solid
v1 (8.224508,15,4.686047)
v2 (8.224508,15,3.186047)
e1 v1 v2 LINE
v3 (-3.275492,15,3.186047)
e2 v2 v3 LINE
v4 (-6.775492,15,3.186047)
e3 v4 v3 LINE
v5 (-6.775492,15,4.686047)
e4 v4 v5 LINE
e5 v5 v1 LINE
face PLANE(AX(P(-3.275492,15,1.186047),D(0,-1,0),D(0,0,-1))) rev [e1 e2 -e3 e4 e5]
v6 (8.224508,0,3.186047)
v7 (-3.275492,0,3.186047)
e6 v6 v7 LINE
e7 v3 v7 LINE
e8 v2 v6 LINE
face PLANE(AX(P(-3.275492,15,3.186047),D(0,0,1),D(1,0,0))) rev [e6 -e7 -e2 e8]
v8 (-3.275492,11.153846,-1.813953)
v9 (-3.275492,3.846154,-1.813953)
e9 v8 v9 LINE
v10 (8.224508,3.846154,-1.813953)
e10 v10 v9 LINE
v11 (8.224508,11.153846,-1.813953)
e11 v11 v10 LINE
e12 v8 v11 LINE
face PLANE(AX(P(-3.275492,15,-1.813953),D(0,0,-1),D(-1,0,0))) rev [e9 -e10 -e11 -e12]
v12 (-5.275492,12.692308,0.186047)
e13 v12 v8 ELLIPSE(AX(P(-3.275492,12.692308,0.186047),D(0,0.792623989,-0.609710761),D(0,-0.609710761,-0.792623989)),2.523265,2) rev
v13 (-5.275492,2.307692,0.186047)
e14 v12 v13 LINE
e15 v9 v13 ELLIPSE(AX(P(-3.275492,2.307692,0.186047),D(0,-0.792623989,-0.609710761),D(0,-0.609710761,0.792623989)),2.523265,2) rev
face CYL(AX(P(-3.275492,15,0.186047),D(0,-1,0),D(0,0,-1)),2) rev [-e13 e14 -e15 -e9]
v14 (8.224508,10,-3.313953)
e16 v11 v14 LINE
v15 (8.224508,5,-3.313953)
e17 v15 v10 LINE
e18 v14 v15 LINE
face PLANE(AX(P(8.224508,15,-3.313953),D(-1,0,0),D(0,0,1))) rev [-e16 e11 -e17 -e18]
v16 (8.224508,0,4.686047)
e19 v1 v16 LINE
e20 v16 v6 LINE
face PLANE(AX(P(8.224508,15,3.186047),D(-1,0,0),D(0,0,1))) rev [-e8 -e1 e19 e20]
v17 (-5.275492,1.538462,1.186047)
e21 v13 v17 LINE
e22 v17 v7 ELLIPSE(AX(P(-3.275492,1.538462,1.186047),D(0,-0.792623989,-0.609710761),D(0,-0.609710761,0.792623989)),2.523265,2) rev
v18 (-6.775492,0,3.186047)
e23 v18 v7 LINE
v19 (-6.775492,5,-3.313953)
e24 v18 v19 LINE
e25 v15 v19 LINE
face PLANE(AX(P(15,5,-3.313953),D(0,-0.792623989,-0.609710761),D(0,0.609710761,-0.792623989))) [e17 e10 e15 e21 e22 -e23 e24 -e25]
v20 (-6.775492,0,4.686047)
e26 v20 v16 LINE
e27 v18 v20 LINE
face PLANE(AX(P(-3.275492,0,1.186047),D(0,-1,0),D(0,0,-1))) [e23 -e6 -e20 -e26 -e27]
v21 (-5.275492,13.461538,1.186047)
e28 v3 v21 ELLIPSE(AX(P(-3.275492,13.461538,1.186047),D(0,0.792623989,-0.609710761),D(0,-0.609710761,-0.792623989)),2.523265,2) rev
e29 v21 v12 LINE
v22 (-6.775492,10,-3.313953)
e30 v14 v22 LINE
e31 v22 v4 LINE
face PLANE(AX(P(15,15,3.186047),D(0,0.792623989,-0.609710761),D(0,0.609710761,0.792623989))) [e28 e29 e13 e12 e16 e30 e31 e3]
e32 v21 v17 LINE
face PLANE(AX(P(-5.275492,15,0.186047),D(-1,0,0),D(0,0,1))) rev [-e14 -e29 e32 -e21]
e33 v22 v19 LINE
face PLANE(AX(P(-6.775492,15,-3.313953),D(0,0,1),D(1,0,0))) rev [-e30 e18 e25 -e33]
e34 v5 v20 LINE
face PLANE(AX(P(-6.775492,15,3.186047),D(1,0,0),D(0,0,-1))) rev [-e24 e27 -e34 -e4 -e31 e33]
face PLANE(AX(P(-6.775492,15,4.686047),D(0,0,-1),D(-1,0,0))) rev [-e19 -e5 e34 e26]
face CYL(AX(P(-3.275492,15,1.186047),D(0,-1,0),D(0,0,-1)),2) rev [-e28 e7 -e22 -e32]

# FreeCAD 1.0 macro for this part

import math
import FreeCAD as App
import Part
import Sketcher
Q = App.Units.Quantity

doc = App.newDocument("Part")
body = doc.addObject("PartDesign::Body", "Body")

# Sketch on XZ plane
sketch1 = body.newObject("Sketcher::SketchObject", "Sketch")
sketch1.AttachmentSupport = (doc.getObject("XZ_Plane"), [""])
sketch1.MapMode = "FlatFace"
sketch1.addGeometry([
    Part.LineSegment(App.Vector(8.2, -3.3, 0), App.Vector(-6.8, -3.3, 0)),  # 0
    Part.LineSegment(App.Vector(-6.8, -3.3, 0), App.Vector(-6.8, 4.7, 0)),  # 1
    Part.LineSegment(App.Vector(-6.8, 4.7, 0), App.Vector(8.2, 4.7, 0)),  # 2
    Part.LineSegment(App.Vector(8.2, 4.7, 0), App.Vector(8.2, 3.2, 0)),  # 3
    Part.LineSegment(App.Vector(8.2, 3.2, 0), App.Vector(-3.3, 3.2, 0)),  # 4
    Part.ArcOfCircle(Part.Circle(App.Vector(-3.3, 1.2, 0), App.Vector(0, 0, 1), 2), math.radians(90), math.radians(180)),  # 5
    Part.LineSegment(App.Vector(-5.3, 1.2, 0), App.Vector(-5.3, 0.2, 0)),  # 6
    Part.ArcOfCircle(Part.Circle(App.Vector(-3.3, 0.2, 0), App.Vector(0, 0, 1), 2), math.radians(180), math.radians(270)),  # 7
    Part.LineSegment(App.Vector(-3.3, -1.8, 0), App.Vector(8.2, -1.8, 0)),  # 8
    Part.LineSegment(App.Vector(8.2, -1.8, 0), App.Vector(8.2, -3.3, 0)),  # 9
], False)
sketch1.addConstraint([
    Sketcher.Constraint("Coincident", 0, 2, 1, 1),
    Sketcher.Constraint("Coincident", 1, 2, 2, 1),
    Sketcher.Constraint("Coincident", 2, 2, 3, 1),
    Sketcher.Constraint("Coincident", 3, 2, 4, 1),
    Sketcher.Constraint("Tangent", 4, 2, 5, 1),
    Sketcher.Constraint("Tangent", 5, 2, 6, 1),
    Sketcher.Constraint("Tangent", 6, 2, 7, 1),
    Sketcher.Constraint("Tangent", 7, 2, 8, 1),
    Sketcher.Constraint("Coincident", 8, 2, 9, 1),
    Sketcher.Constraint("Coincident", 9, 2, 0, 1),
    Sketcher.Constraint("Horizontal", 0),
    Sketcher.Constraint("Vertical", 1),
    Sketcher.Constraint("Horizontal", 2),
    Sketcher.Constraint("Vertical", 3),
    Sketcher.Constraint("Horizontal", 4),
    Sketcher.Constraint("Vertical", 6),
    Sketcher.Constraint("Horizontal", 8),
    Sketcher.Constraint("Vertical", 9),
    Sketcher.Constraint("Equal", 5, 7),
    Sketcher.Constraint("Vertical", 3, 2, 8, 2),
    Sketcher.Constraint("Equal", 3, 9),
    Sketcher.Constraint("Radius", 5, Q("2 mm")),
    Sketcher.Constraint("DistanceX", 0, 2, 0, 1, Q("15 mm")),
    Sketcher.Constraint("DistanceY", 1, 1, 1, 2, Q("8 mm")),
    Sketcher.Constraint("DistanceY", 6, 2, 6, 1, Q("1 mm")),
    Sketcher.Constraint("DistanceX", 4, 2, 4, 1, Q("11.5 mm")),
    Sketcher.Constraint("DistanceX", 5, 3, -1, 1, Q("3.275492 mm")),
    Sketcher.Constraint("DistanceY", -1, 1, 5, 3, Q("1.186047 mm")),
])
pad1 = body.newObject("PartDesign::Pad", "Pad")
pad1.Profile = sketch1
pad1.Length = 15
pad1.Reversed = True

# Sketch on YZ plane
sketch2 = body.newObject("Sketcher::SketchObject", "Sketch001")
sketch2.AttachmentSupport = (doc.getObject("YZ_Plane"), [""])
sketch2.MapMode = "FlatFace"
sketch2.addGeometry([
    Part.LineSegment(App.Vector(15, 3, 0), App.Vector(10, -3, 0)),  # 0
    Part.LineSegment(App.Vector(10, -3, 0), App.Vector(5, -3, 0)),  # 1
    Part.LineSegment(App.Vector(5, -3, 0), App.Vector(0, 3, 0)),  # 2
    Part.LineSegment(App.Vector(0, 3, 0), App.Vector(-2, -6, 0)),  # 3
    Part.LineSegment(App.Vector(-2, -6, 0), App.Vector(9, -16, 0)),  # 4
    Part.LineSegment(App.Vector(9, -16, 0), App.Vector(18, -5, 0)),  # 5
    Part.LineSegment(App.Vector(18, -5, 0), App.Vector(15, 3, 0)),  # 6
], False)
sketch2.addConstraint([
    Sketcher.Constraint("Coincident", 0, 2, 1, 1),
    Sketcher.Constraint("Coincident", 1, 2, 2, 1),
    Sketcher.Constraint("Coincident", 2, 2, 3, 1),
    Sketcher.Constraint("Coincident", 3, 2, 4, 1),
    Sketcher.Constraint("Coincident", 4, 2, 5, 1),
    Sketcher.Constraint("Coincident", 5, 2, 6, 1),
    Sketcher.Constraint("Coincident", 6, 2, 0, 1),
    Sketcher.Constraint("Horizontal", 1),
    Sketcher.Constraint("PointOnObject", 2, 2, -2),
    Sketcher.Constraint("Parallel", 0, 5),
    Sketcher.Constraint("Horizontal", 2, 2, 6, 2),
    Sketcher.Constraint("Equal", 0, 2),
    Sketcher.Constraint("DistanceX", 1, 2, 1, 1, Q("5 mm")),
    Sketcher.Constraint("DistanceX", -1, 1, 0, 2, Q("10 mm")),
    Sketcher.Constraint("DistanceY", 1, 2, 2, 2, Q("6.5 mm")),
    Sketcher.Constraint("Distance", 6, Q("8.658419 mm")),
    Sketcher.Constraint("DistanceX", -1, 1, 4, 2, Q("9.03431 mm")),
    Sketcher.Constraint("DistanceX", -1, 1, 5, 2, Q("17.72174 mm")),
    Sketcher.Constraint("DistanceY", 3, 2, 1, 2, Q("2.231541 mm")),
    Sketcher.Constraint("Distance", 3, Q("8.952083 mm")),
    Sketcher.Constraint("DistanceY", 0, 2, -1, 1, Q("3.313953 mm")),
])
pocket1 = body.newObject("PartDesign::Pocket", "Pocket")
pocket1.Profile = sketch2
pocket1.Type = "ThroughAll"
pocket1.Midplane = True

doc.recompute()
